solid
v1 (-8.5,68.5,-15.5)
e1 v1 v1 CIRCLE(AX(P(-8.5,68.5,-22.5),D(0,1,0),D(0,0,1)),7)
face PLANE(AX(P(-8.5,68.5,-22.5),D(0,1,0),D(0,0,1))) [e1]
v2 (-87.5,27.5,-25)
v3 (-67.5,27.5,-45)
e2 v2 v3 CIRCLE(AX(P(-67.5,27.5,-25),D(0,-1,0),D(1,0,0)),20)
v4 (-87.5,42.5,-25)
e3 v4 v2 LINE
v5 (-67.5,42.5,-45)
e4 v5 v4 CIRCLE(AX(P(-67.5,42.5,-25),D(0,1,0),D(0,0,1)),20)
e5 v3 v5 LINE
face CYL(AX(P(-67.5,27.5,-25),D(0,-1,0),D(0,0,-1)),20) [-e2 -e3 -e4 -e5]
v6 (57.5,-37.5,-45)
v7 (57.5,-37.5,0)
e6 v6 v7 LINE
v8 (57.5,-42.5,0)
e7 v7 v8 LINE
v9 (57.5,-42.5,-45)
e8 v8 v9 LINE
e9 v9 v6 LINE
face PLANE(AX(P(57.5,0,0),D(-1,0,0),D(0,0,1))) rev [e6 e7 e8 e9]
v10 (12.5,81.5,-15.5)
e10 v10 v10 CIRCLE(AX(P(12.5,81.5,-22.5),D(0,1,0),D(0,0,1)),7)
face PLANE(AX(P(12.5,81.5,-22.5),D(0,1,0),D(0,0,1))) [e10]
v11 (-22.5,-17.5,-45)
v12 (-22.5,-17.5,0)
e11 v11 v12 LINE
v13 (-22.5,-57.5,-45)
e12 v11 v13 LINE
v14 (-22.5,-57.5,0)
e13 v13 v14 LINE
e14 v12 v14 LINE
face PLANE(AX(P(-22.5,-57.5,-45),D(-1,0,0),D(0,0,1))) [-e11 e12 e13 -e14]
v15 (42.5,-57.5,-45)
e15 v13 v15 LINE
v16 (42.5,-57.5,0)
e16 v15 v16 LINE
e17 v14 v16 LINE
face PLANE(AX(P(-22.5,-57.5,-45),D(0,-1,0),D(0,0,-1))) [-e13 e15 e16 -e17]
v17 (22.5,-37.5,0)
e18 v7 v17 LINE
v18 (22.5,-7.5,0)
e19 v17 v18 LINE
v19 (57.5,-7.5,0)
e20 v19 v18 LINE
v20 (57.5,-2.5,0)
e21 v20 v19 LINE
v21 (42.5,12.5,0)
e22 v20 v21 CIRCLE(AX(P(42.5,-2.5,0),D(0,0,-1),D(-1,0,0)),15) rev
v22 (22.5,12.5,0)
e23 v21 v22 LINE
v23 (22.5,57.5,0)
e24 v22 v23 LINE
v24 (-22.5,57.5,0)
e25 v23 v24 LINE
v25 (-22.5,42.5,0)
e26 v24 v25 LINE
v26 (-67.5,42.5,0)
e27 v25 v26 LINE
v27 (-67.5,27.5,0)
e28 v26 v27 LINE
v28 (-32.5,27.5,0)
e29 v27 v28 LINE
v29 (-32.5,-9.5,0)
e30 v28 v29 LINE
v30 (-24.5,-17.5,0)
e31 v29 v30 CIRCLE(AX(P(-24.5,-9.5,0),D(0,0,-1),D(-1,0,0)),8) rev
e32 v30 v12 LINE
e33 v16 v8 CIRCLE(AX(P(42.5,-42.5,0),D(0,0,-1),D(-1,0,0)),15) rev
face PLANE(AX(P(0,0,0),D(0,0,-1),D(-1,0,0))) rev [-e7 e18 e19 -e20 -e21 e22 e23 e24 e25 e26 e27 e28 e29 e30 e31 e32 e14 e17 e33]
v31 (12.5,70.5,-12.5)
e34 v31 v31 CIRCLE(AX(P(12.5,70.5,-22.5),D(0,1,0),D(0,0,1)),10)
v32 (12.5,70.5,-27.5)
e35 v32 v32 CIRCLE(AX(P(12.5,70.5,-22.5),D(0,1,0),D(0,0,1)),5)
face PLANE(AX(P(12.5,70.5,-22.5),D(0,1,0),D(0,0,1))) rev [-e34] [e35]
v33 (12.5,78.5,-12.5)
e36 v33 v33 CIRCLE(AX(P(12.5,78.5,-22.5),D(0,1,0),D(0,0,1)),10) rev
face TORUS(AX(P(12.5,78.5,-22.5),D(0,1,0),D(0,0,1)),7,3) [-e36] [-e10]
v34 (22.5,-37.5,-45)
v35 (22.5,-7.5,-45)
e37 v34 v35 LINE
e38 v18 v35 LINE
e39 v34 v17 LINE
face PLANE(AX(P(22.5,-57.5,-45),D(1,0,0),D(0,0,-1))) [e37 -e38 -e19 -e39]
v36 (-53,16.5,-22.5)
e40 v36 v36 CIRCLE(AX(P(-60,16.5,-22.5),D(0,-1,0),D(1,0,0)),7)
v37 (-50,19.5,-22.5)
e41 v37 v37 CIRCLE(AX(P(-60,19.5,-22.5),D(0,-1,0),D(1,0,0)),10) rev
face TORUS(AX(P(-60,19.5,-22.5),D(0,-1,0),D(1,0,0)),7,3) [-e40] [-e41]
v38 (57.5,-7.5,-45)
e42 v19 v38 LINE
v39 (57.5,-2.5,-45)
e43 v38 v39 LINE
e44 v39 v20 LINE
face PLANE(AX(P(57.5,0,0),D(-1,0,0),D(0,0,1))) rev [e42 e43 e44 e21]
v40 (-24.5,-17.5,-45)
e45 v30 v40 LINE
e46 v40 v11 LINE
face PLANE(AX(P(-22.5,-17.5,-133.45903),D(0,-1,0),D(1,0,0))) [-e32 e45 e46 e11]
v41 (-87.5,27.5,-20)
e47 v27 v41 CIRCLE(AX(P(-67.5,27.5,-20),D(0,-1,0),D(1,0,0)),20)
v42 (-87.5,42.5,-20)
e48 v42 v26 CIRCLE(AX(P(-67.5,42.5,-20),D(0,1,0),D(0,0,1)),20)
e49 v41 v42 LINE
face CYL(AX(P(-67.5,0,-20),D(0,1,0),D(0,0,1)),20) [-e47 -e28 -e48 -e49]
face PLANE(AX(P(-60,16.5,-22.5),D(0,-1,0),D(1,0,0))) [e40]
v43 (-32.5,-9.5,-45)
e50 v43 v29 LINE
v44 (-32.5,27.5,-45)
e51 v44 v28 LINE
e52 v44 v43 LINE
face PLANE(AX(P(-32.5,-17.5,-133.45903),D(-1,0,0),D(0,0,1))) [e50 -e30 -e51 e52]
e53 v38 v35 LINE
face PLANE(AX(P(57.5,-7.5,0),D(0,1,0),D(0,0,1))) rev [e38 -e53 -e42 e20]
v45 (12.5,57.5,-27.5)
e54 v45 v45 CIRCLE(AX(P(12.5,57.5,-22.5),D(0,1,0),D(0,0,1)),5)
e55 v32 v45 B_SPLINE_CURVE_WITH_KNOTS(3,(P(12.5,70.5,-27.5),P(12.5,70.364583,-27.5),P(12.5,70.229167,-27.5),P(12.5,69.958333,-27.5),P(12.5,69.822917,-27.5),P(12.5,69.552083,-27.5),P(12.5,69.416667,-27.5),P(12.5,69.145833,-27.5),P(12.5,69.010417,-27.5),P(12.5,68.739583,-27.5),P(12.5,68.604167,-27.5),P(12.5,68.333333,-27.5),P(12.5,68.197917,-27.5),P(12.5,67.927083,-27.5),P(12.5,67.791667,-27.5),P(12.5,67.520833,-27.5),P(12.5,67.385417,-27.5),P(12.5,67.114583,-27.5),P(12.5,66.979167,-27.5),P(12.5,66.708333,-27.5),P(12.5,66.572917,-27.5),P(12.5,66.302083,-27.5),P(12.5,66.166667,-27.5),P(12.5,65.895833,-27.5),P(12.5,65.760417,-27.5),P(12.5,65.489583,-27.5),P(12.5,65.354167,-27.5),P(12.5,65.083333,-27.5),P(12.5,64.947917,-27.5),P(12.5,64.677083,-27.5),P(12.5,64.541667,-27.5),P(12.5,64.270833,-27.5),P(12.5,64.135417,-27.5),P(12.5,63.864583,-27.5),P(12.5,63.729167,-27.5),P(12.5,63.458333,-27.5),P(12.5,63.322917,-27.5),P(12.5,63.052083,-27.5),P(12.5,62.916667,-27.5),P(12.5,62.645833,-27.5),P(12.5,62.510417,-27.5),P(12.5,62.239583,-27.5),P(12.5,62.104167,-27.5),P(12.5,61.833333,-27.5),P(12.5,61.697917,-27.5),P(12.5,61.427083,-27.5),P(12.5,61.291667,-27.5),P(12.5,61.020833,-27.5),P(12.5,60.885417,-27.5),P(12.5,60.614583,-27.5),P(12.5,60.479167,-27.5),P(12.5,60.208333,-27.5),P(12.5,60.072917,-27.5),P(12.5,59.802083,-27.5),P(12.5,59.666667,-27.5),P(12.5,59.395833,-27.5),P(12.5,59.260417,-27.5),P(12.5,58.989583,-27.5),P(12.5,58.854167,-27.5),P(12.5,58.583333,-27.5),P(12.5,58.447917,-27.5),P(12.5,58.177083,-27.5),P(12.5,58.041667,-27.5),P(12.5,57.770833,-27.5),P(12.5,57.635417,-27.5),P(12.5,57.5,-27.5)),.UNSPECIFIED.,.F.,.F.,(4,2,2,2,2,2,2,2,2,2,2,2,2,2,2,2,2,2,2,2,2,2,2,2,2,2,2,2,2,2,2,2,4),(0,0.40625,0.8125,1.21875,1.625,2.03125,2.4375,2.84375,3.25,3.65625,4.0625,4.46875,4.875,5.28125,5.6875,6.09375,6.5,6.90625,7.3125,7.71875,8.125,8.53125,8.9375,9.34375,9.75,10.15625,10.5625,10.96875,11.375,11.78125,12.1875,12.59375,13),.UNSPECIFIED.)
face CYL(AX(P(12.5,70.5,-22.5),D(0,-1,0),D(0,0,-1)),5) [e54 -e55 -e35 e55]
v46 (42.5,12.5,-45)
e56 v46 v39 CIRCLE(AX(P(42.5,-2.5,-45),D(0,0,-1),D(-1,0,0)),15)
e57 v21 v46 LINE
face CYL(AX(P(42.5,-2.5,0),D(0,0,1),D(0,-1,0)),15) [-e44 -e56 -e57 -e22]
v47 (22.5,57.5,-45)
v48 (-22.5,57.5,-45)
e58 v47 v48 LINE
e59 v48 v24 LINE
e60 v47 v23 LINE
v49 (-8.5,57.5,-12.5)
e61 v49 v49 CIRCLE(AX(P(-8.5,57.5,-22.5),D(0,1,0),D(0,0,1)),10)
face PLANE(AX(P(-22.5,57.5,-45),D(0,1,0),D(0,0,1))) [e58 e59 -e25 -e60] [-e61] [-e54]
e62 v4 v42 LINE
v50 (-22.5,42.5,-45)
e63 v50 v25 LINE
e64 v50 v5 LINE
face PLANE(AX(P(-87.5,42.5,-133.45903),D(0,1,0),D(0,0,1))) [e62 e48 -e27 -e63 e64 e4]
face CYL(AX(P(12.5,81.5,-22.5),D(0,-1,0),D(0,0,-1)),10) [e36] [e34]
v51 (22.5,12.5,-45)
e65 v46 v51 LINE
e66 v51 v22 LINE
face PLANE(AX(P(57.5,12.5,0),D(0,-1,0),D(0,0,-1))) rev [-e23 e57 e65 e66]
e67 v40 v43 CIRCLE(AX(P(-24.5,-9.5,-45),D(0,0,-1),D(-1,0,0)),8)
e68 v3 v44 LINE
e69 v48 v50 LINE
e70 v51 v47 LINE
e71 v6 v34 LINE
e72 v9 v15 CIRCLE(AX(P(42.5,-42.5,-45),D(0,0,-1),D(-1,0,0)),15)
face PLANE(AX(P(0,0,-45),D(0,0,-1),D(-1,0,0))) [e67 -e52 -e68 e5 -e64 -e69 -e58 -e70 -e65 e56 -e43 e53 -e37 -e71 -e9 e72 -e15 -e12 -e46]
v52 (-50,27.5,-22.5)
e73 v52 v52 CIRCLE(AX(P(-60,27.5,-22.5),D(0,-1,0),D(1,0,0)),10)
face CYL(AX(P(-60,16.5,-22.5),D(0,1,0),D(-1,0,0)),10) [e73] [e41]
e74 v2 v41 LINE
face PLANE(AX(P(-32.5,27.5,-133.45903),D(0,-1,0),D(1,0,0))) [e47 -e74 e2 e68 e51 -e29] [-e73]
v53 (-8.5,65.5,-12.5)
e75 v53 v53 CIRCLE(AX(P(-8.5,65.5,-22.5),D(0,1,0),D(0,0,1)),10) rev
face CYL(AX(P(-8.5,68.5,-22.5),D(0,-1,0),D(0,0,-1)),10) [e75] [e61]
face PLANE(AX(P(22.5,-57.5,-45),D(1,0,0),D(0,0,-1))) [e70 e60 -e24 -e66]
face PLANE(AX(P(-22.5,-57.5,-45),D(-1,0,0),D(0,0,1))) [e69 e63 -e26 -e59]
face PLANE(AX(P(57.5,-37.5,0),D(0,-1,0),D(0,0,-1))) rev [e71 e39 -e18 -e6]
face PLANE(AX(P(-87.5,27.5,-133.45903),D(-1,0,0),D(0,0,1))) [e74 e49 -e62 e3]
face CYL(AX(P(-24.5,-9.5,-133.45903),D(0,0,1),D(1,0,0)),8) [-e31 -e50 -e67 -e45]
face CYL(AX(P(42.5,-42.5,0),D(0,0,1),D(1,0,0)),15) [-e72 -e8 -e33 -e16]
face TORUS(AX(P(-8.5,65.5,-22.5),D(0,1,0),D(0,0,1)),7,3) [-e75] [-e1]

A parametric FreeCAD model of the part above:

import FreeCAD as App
import Part
import Sketcher
from FreeCAD import Vector
Q = App.Units.Quantity


def edges_at(feature, points):
    """Names of the edges that pass closest to the given points."""
    edges = feature.Shape.Edges
    near = lambda p: min(range(len(edges)), key=lambda i: edges[i].distToShape(Part.Vertex(*p))[0])
    return sorted({f"Edge{near(p) + 1}" for p in points})


def add_polygon(sketch, points):
    """Adds a closed chain of lines whose ends are joined by coincident constraints."""
    first, n = sketch.GeometryCount, len(points)
    for a, b in zip(points, points[1:] + points[:1]):
        sketch.addGeometry(Part.LineSegment(App.Vector(*a, 0), App.Vector(*b, 0)), False)
    for i in range(n):
        sketch.addConstraint(Sketcher.Constraint("Coincident", first + i, 2, first + (i + 1) % n, 1))

doc = App.newDocument("Part")
body = doc.addObject("PartDesign::Body", "Body")

sketch1 = body.newObject("Sketcher::SketchObject", "Sketch")
sketch1.AttachmentSupport = (doc.getObject("XY_Plane"), [""])
sketch1.MapMode = "FlatFace"
add_polygon(sketch1, [(-22, 58), (-22, -58), (22, -58), (22, 58)])
sketch1.addConstraint(Sketcher.Constraint("Vertical", 0))
sketch1.addConstraint(Sketcher.Constraint("Horizontal", 1))
sketch1.addConstraint(Sketcher.Constraint("Vertical", 2))
sketch1.addConstraint(Sketcher.Constraint("Horizontal", 3))
sketch1.addConstraint(Sketcher.Constraint("Symmetric", 0, 2, 2, 2, -1, 1))
sketch1.addConstraint(Sketcher.Constraint("DistanceX", 1, 1, 1, 2, Q("45 mm")))
sketch1.addConstraint(Sketcher.Constraint("DistanceY", 0, 2, 0, 1, Q("115 mm")))
pad1 = body.newObject("PartDesign::Pad", "Pad")
pad1.Profile = sketch1
pad1.Length = 45
pad1.Reversed = True

sketch2 = body.newObject("Sketcher::SketchObject", "Sketch001")
sketch2.AttachmentSupport = (doc.getObject("YZ_Plane"), [""])
sketch2.MapMode = "FlatFace"
sketch2.AttachmentOffset = App.Placement(Vector(0, 0, 22.5), App.Rotation())
add_polygon(sketch2, [(-38, 0), (-58, 0), (-58, -45), (-38, -45)])
add_polygon(sketch2, [(12, 0), (-8, 0), (-8, -45), (12, -45)])
sketch2.addConstraint(Sketcher.Constraint("Horizontal", 0))
sketch2.addConstraint(Sketcher.Constraint("Vertical", 1))
sketch2.addConstraint(Sketcher.Constraint("Horizontal", 2))
sketch2.addConstraint(Sketcher.Constraint("Vertical", 3))
sketch2.addConstraint(Sketcher.Constraint("Horizontal", 4))
sketch2.addConstraint(Sketcher.Constraint("Vertical", 5))
sketch2.addConstraint(Sketcher.Constraint("Horizontal", 6))
sketch2.addConstraint(Sketcher.Constraint("Vertical", 7))
sketch2.addConstraint(Sketcher.Constraint("PointOnObject", 0, 2, -1))
sketch2.addConstraint(Sketcher.Constraint("PointOnObject", 4, 2, -1))
sketch2.addConstraint(Sketcher.Constraint("Horizontal", 2, 2, 5, 2))
sketch2.addConstraint(Sketcher.Constraint("Equal", 2, 4))
sketch2.addConstraint(Sketcher.Constraint("DistanceX", 0, 2, 0, 1, Q("20 mm")))
sketch2.addConstraint(Sketcher.Constraint("DistanceY", 1, 2, 1, 1, Q("45 mm")))
sketch2.addConstraint(Sketcher.Constraint("DistanceX", 3, 2, 4, 2, Q("30 mm")))
sketch2.addConstraint(Sketcher.Constraint("DistanceX", 0, 2, -1, 1, Q("57.5 mm")))
pad2 = body.newObject("PartDesign::Pad", "Pad001")
pad2.Profile = sketch2
pad2.Length = 35

sketch3 = body.newObject("Sketcher::SketchObject", "Sketch002")
sketch3.AttachmentSupport = (doc.getObject("XY_Plane"), [""])
sketch3.MapMode = "FlatFace"
add_polygon(sketch3, [(-32, -18), (-22, -18), (-22, 42), (-88, 42), (-88, 28), (-32, 28)])
sketch3.addConstraint(Sketcher.Constraint("Horizontal", 0))
sketch3.addConstraint(Sketcher.Constraint("Vertical", 1))
sketch3.addConstraint(Sketcher.Constraint("Horizontal", 2))
sketch3.addConstraint(Sketcher.Constraint("Vertical", 3))
sketch3.addConstraint(Sketcher.Constraint("Horizontal", 4))
sketch3.addConstraint(Sketcher.Constraint("Vertical", 5))
sketch3.addConstraint(Sketcher.Constraint("DistanceX", 0, 1, 0, 2, Q("10 mm")))
sketch3.addConstraint(Sketcher.Constraint("DistanceX", 2, 2, 2, 1, Q("65 mm")))
sketch3.addConstraint(Sketcher.Constraint("DistanceY", 1, 1, 1, 2, Q("60 mm")))
sketch3.addConstraint(Sketcher.Constraint("DistanceY", 3, 2, 3, 1, Q("15 mm")))
sketch3.addConstraint(Sketcher.Constraint("DistanceX", 0, 2, -1, 1, Q("22.5 mm")))
sketch3.addConstraint(Sketcher.Constraint("DistanceY", 0, 2, -1, 1, Q("17.5 mm")))
pad3 = body.newObject("PartDesign::Pad", "Pad002")
pad3.Profile = sketch3
pad3.Length = 45
pad3.Reversed = True

sketch4 = body.newObject("Sketcher::SketchObject", "Sketch003")
sketch4.AttachmentSupport = (doc.getObject("XZ_Plane"), [""])
sketch4.MapMode = "FlatFace"
sketch4.AttachmentOffset = App.Placement(Vector(0, 0, -57.5), App.Rotation())
sketch4.addGeometry(Part.Circle(Vector(-8, -22, 0), Vector(0, 0, 1), 10), False)
sketch4.addConstraint(Sketcher.Constraint("Diameter", 0, Q("20 mm")))
sketch4.addConstraint(Sketcher.Constraint("DistanceX", 0, 3, -1, 1, Q("8.5 mm")))
sketch4.addConstraint(Sketcher.Constraint("DistanceY", 0, 3, -1, 1, Q("22.5 mm")))
pad4 = body.newObject("PartDesign::Pad", "Pad003")
pad4.Profile = sketch4
pad4.Length = 11
pad4.Reversed = True

sketch5 = body.newObject("Sketcher::SketchObject", "Sketch004")
sketch5.AttachmentSupport = (doc.getObject("XZ_Plane"), [""])
sketch5.MapMode = "FlatFace"
sketch5.AttachmentOffset = App.Placement(Vector(0, 0, -57.5), App.Rotation())
sketch5.addGeometry(Part.Circle(Vector(12, -22, 0), Vector(0, 0, 1), 5), False)
sketch5.addConstraint(Sketcher.Constraint("Diameter", 0, Q("10 mm")))
sketch5.addConstraint(Sketcher.Constraint("DistanceX", -1, 1, 0, 3, Q("12.5 mm")))
sketch5.addConstraint(Sketcher.Constraint("DistanceY", 0, 3, -1, 1, Q("22.5 mm")))
pad5 = body.newObject("PartDesign::Pad", "Pad004")
pad5.Profile = sketch5
pad5.Length = 13
pad5.Reversed = True

sketch6 = body.newObject("Sketcher::SketchObject", "Sketch005")
sketch6.AttachmentSupport = (doc.getObject("XZ_Plane"), [""])
sketch6.MapMode = "FlatFace"
sketch6.AttachmentOffset = App.Placement(Vector(0, 0, -70.5), App.Rotation())
sketch6.addGeometry(Part.Circle(Vector(12, -22, 0), Vector(0, 0, 1), 10), False)
sketch6.addConstraint(Sketcher.Constraint("Diameter", 0, Q("20 mm")))
sketch6.addConstraint(Sketcher.Constraint("DistanceX", -1, 1, 0, 3, Q("12.5 mm")))
sketch6.addConstraint(Sketcher.Constraint("DistanceY", 0, 3, -1, 1, Q("22.5 mm")))
pad6 = body.newObject("PartDesign::Pad", "Pad005")
pad6.Profile = sketch6
pad6.Length = 11
pad6.Reversed = True

sketch7 = body.newObject("Sketcher::SketchObject", "Sketch006")
sketch7.AttachmentSupport = (doc.getObject("XZ_Plane"), [""])
sketch7.MapMode = "FlatFace"
sketch7.AttachmentOffset = App.Placement(Vector(0, 0, -27.5), App.Rotation())
sketch7.addGeometry(Part.Circle(Vector(-60, -22, 0), Vector(0, 0, 1), 10), False)
sketch7.addConstraint(Sketcher.Constraint("Diameter", 0, Q("20 mm")))
sketch7.addConstraint(Sketcher.Constraint("DistanceX", 0, 3, -1, 1, Q("60 mm")))
sketch7.addConstraint(Sketcher.Constraint("DistanceY", 0, 3, -1, 1, Q("22.5 mm")))
pad7 = body.newObject("PartDesign::Pad", "Pad006")
pad7.Profile = sketch7
pad7.Length = 11
doc.recompute()

fillet = body.newObject("PartDesign::Fillet", "Fillet")
fillet.Base = (pad7, edges_at(pad7, [(-87.5, 35, 0), (-87.5, 35, -45)]))
fillet.Radius = 20
doc.recompute()

fillet2 = body.newObject("PartDesign::Fillet", "Fillet001")
fillet2.Base = (fillet, edges_at(fillet, [(-32.5, -17.5, -22.5)]))
fillet2.Radius = 8
doc.recompute()

fillet3 = body.newObject("PartDesign::Fillet", "Fillet002")
fillet3.Base = (fillet2, edges_at(fillet2, [(57.5, -57.5, -22.5), (57.5, 12.5, -22.5)]))
fillet3.Radius = 15
doc.recompute()

fillet4 = body.newObject("PartDesign::Fillet", "Fillet003")
fillet4.Base = (fillet3, edges_at(fillet3, [(-8.5, 68.5, -32.5), (12.5, 81.5, -32.5), (-70, 16.5, -22.5)]))
fillet4.Radius = 3

doc.recompute()
